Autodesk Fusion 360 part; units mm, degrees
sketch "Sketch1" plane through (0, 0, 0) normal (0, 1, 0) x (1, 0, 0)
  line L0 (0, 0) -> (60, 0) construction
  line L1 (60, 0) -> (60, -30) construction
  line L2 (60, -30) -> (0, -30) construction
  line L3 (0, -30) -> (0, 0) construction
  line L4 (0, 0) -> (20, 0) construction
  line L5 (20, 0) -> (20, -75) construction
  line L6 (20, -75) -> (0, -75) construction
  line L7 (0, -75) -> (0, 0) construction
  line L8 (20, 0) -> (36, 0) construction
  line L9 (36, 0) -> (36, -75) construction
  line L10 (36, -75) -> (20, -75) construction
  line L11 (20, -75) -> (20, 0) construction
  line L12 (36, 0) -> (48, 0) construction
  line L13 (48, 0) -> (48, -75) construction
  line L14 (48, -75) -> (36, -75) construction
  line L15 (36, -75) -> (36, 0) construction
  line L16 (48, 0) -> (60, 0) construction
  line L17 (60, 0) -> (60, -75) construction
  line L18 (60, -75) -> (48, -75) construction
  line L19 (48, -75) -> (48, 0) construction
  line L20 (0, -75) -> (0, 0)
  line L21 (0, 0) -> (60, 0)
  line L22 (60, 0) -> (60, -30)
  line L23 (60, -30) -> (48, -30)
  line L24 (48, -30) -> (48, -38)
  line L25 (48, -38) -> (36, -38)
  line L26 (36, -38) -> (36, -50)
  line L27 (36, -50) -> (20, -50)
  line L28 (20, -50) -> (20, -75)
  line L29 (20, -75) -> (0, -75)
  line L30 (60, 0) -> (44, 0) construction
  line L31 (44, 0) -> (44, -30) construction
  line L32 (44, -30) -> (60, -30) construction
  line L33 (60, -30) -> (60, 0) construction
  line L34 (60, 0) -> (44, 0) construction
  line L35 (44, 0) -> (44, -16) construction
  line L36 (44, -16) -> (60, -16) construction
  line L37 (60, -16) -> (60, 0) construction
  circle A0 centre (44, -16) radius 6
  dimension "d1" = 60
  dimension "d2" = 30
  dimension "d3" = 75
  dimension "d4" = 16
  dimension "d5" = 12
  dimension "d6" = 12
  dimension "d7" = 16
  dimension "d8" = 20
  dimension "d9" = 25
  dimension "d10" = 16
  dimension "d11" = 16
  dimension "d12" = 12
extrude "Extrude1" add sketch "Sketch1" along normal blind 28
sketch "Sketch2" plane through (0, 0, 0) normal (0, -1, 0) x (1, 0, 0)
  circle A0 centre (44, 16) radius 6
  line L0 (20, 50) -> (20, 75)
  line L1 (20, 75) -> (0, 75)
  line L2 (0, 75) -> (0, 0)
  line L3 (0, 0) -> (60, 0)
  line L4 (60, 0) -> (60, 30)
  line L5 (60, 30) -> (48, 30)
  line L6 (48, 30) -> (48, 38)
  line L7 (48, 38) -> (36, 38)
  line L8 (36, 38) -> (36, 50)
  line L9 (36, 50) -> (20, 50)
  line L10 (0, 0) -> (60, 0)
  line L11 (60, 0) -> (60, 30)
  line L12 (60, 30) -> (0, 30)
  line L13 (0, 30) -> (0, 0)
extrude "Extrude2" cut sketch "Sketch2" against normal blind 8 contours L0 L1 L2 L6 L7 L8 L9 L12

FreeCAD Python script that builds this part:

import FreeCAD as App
import Part
import Sketcher
from FreeCAD import Vector
Q = App.Units.Quantity


def add_polygon(sketch, points):
    """Adds a closed chain of lines whose ends are joined by coincident constraints."""
    first, n = sketch.GeometryCount, len(points)
    for a, b in zip(points, points[1:] + points[:1]):
        sketch.addGeometry(Part.LineSegment(App.Vector(*a, 0), App.Vector(*b, 0)), False)
    for i in range(n):
        sketch.addConstraint(Sketcher.Constraint("Coincident", first + i, 2, first + (i + 1) % n, 1))

doc = App.newDocument("Part")
body = doc.addObject("PartDesign::Body", "Body")

sketch1 = body.newObject("Sketcher::SketchObject", "Sketch")
sketch1.AttachmentSupport = (doc.getObject("XZ_Plane"), [""])
sketch1.MapMode = "FlatFace"
add_polygon(sketch1, [(0, 0), (0, 75), (20, 75), (20, 50), (36, 50), (36, 38), (48, 38), (48, 30), (60, 30), (60, 0)])
sketch1.addGeometry(Part.Circle(Vector(44, 16, 0), Vector(0, 0, 1), 6), False)
sketch1.addConstraint([
    Sketcher.Constraint("Vertical", 0),
    Sketcher.Constraint("Horizontal", 1),
    Sketcher.Constraint("Vertical", 2),
    Sketcher.Constraint("Horizontal", 3),
    Sketcher.Constraint("Vertical", 4),
    Sketcher.Constraint("Horizontal", 5),
    Sketcher.Constraint("Vertical", 6),
    Sketcher.Constraint("Horizontal", 7),
    Sketcher.Constraint("Vertical", 8),
    Sketcher.Constraint("Horizontal", 9),
    Sketcher.Constraint("Coincident", 9, 2, -1, 1),
    Sketcher.Constraint("Equal", 5, 7),
    Sketcher.Constraint("Equal", 7, 4),
    Sketcher.Constraint("Diameter", 10, Q("12 mm")),
    Sketcher.Constraint("DistanceX", 1, 1, 1, 2, Q("20 mm")),
    Sketcher.Constraint("DistanceX", 3, 1, 3, 2, Q("16 mm")),
    Sketcher.Constraint("DistanceX", 5, 1, 5, 2, Q("12 mm")),
    Sketcher.Constraint("DistanceY", 0, 1, 0, 2, Q("75 mm")),
    Sketcher.Constraint("DistanceY", 2, 2, 2, 1, Q("25 mm")),
    Sketcher.Constraint("DistanceY", 8, 2, 8, 1, Q("30 mm")),
    Sketcher.Constraint("DistanceY", -1, 1, 10, 3, Q("16 mm")),
    Sketcher.Constraint("DistanceX", 10, 3, 7, 2, Q("16 mm")),
])
pad1 = body.newObject("PartDesign::Pad", "Pad")
pad1.Profile = sketch1
pad1.Length = 28
pad1.Reversed = True

sketch2 = body.newObject("Sketcher::SketchObject", "Sketch001")
sketch2.AttachmentSupport = (doc.getObject("XZ_Plane"), [""])
sketch2.MapMode = "FlatFace"
add_polygon(sketch2, [(36, 50), (20, 50), (20, 75), (0, 75), (0, 30), (48, 30), (48, 38), (36, 38)])
sketch2.addConstraint([
    Sketcher.Constraint("Horizontal", 0),
    Sketcher.Constraint("Vertical", 1),
    Sketcher.Constraint("Horizontal", 2),
    Sketcher.Constraint("Vertical", 3),
    Sketcher.Constraint("Horizontal", 4),
    Sketcher.Constraint("Vertical", 5),
    Sketcher.Constraint("Horizontal", 6),
    Sketcher.Constraint("Vertical", 7),
    Sketcher.Constraint("PointOnObject", 2, 2, -2),
    Sketcher.Constraint("Equal", 6, 7),
    Sketcher.Constraint("DistanceX", 0, 2, 0, 1, Q("16 mm")),
    Sketcher.Constraint("DistanceX", 2, 2, 2, 1, Q("20 mm")),
    Sketcher.Constraint("DistanceX", 4, 1, 4, 2, Q("48 mm")),
    Sketcher.Constraint("DistanceY", 1, 1, 1, 2, Q("25 mm")),
    Sketcher.Constraint("DistanceY", 3, 2, 3, 1, Q("45 mm")),
    Sketcher.Constraint("DistanceY", -1, 1, 0, 2, Q("50 mm")),
])
pocket1 = body.newObject("PartDesign::Pocket", "Pocket")
pocket1.Profile = sketch2
pocket1.Length = 8

doc.recompute()
